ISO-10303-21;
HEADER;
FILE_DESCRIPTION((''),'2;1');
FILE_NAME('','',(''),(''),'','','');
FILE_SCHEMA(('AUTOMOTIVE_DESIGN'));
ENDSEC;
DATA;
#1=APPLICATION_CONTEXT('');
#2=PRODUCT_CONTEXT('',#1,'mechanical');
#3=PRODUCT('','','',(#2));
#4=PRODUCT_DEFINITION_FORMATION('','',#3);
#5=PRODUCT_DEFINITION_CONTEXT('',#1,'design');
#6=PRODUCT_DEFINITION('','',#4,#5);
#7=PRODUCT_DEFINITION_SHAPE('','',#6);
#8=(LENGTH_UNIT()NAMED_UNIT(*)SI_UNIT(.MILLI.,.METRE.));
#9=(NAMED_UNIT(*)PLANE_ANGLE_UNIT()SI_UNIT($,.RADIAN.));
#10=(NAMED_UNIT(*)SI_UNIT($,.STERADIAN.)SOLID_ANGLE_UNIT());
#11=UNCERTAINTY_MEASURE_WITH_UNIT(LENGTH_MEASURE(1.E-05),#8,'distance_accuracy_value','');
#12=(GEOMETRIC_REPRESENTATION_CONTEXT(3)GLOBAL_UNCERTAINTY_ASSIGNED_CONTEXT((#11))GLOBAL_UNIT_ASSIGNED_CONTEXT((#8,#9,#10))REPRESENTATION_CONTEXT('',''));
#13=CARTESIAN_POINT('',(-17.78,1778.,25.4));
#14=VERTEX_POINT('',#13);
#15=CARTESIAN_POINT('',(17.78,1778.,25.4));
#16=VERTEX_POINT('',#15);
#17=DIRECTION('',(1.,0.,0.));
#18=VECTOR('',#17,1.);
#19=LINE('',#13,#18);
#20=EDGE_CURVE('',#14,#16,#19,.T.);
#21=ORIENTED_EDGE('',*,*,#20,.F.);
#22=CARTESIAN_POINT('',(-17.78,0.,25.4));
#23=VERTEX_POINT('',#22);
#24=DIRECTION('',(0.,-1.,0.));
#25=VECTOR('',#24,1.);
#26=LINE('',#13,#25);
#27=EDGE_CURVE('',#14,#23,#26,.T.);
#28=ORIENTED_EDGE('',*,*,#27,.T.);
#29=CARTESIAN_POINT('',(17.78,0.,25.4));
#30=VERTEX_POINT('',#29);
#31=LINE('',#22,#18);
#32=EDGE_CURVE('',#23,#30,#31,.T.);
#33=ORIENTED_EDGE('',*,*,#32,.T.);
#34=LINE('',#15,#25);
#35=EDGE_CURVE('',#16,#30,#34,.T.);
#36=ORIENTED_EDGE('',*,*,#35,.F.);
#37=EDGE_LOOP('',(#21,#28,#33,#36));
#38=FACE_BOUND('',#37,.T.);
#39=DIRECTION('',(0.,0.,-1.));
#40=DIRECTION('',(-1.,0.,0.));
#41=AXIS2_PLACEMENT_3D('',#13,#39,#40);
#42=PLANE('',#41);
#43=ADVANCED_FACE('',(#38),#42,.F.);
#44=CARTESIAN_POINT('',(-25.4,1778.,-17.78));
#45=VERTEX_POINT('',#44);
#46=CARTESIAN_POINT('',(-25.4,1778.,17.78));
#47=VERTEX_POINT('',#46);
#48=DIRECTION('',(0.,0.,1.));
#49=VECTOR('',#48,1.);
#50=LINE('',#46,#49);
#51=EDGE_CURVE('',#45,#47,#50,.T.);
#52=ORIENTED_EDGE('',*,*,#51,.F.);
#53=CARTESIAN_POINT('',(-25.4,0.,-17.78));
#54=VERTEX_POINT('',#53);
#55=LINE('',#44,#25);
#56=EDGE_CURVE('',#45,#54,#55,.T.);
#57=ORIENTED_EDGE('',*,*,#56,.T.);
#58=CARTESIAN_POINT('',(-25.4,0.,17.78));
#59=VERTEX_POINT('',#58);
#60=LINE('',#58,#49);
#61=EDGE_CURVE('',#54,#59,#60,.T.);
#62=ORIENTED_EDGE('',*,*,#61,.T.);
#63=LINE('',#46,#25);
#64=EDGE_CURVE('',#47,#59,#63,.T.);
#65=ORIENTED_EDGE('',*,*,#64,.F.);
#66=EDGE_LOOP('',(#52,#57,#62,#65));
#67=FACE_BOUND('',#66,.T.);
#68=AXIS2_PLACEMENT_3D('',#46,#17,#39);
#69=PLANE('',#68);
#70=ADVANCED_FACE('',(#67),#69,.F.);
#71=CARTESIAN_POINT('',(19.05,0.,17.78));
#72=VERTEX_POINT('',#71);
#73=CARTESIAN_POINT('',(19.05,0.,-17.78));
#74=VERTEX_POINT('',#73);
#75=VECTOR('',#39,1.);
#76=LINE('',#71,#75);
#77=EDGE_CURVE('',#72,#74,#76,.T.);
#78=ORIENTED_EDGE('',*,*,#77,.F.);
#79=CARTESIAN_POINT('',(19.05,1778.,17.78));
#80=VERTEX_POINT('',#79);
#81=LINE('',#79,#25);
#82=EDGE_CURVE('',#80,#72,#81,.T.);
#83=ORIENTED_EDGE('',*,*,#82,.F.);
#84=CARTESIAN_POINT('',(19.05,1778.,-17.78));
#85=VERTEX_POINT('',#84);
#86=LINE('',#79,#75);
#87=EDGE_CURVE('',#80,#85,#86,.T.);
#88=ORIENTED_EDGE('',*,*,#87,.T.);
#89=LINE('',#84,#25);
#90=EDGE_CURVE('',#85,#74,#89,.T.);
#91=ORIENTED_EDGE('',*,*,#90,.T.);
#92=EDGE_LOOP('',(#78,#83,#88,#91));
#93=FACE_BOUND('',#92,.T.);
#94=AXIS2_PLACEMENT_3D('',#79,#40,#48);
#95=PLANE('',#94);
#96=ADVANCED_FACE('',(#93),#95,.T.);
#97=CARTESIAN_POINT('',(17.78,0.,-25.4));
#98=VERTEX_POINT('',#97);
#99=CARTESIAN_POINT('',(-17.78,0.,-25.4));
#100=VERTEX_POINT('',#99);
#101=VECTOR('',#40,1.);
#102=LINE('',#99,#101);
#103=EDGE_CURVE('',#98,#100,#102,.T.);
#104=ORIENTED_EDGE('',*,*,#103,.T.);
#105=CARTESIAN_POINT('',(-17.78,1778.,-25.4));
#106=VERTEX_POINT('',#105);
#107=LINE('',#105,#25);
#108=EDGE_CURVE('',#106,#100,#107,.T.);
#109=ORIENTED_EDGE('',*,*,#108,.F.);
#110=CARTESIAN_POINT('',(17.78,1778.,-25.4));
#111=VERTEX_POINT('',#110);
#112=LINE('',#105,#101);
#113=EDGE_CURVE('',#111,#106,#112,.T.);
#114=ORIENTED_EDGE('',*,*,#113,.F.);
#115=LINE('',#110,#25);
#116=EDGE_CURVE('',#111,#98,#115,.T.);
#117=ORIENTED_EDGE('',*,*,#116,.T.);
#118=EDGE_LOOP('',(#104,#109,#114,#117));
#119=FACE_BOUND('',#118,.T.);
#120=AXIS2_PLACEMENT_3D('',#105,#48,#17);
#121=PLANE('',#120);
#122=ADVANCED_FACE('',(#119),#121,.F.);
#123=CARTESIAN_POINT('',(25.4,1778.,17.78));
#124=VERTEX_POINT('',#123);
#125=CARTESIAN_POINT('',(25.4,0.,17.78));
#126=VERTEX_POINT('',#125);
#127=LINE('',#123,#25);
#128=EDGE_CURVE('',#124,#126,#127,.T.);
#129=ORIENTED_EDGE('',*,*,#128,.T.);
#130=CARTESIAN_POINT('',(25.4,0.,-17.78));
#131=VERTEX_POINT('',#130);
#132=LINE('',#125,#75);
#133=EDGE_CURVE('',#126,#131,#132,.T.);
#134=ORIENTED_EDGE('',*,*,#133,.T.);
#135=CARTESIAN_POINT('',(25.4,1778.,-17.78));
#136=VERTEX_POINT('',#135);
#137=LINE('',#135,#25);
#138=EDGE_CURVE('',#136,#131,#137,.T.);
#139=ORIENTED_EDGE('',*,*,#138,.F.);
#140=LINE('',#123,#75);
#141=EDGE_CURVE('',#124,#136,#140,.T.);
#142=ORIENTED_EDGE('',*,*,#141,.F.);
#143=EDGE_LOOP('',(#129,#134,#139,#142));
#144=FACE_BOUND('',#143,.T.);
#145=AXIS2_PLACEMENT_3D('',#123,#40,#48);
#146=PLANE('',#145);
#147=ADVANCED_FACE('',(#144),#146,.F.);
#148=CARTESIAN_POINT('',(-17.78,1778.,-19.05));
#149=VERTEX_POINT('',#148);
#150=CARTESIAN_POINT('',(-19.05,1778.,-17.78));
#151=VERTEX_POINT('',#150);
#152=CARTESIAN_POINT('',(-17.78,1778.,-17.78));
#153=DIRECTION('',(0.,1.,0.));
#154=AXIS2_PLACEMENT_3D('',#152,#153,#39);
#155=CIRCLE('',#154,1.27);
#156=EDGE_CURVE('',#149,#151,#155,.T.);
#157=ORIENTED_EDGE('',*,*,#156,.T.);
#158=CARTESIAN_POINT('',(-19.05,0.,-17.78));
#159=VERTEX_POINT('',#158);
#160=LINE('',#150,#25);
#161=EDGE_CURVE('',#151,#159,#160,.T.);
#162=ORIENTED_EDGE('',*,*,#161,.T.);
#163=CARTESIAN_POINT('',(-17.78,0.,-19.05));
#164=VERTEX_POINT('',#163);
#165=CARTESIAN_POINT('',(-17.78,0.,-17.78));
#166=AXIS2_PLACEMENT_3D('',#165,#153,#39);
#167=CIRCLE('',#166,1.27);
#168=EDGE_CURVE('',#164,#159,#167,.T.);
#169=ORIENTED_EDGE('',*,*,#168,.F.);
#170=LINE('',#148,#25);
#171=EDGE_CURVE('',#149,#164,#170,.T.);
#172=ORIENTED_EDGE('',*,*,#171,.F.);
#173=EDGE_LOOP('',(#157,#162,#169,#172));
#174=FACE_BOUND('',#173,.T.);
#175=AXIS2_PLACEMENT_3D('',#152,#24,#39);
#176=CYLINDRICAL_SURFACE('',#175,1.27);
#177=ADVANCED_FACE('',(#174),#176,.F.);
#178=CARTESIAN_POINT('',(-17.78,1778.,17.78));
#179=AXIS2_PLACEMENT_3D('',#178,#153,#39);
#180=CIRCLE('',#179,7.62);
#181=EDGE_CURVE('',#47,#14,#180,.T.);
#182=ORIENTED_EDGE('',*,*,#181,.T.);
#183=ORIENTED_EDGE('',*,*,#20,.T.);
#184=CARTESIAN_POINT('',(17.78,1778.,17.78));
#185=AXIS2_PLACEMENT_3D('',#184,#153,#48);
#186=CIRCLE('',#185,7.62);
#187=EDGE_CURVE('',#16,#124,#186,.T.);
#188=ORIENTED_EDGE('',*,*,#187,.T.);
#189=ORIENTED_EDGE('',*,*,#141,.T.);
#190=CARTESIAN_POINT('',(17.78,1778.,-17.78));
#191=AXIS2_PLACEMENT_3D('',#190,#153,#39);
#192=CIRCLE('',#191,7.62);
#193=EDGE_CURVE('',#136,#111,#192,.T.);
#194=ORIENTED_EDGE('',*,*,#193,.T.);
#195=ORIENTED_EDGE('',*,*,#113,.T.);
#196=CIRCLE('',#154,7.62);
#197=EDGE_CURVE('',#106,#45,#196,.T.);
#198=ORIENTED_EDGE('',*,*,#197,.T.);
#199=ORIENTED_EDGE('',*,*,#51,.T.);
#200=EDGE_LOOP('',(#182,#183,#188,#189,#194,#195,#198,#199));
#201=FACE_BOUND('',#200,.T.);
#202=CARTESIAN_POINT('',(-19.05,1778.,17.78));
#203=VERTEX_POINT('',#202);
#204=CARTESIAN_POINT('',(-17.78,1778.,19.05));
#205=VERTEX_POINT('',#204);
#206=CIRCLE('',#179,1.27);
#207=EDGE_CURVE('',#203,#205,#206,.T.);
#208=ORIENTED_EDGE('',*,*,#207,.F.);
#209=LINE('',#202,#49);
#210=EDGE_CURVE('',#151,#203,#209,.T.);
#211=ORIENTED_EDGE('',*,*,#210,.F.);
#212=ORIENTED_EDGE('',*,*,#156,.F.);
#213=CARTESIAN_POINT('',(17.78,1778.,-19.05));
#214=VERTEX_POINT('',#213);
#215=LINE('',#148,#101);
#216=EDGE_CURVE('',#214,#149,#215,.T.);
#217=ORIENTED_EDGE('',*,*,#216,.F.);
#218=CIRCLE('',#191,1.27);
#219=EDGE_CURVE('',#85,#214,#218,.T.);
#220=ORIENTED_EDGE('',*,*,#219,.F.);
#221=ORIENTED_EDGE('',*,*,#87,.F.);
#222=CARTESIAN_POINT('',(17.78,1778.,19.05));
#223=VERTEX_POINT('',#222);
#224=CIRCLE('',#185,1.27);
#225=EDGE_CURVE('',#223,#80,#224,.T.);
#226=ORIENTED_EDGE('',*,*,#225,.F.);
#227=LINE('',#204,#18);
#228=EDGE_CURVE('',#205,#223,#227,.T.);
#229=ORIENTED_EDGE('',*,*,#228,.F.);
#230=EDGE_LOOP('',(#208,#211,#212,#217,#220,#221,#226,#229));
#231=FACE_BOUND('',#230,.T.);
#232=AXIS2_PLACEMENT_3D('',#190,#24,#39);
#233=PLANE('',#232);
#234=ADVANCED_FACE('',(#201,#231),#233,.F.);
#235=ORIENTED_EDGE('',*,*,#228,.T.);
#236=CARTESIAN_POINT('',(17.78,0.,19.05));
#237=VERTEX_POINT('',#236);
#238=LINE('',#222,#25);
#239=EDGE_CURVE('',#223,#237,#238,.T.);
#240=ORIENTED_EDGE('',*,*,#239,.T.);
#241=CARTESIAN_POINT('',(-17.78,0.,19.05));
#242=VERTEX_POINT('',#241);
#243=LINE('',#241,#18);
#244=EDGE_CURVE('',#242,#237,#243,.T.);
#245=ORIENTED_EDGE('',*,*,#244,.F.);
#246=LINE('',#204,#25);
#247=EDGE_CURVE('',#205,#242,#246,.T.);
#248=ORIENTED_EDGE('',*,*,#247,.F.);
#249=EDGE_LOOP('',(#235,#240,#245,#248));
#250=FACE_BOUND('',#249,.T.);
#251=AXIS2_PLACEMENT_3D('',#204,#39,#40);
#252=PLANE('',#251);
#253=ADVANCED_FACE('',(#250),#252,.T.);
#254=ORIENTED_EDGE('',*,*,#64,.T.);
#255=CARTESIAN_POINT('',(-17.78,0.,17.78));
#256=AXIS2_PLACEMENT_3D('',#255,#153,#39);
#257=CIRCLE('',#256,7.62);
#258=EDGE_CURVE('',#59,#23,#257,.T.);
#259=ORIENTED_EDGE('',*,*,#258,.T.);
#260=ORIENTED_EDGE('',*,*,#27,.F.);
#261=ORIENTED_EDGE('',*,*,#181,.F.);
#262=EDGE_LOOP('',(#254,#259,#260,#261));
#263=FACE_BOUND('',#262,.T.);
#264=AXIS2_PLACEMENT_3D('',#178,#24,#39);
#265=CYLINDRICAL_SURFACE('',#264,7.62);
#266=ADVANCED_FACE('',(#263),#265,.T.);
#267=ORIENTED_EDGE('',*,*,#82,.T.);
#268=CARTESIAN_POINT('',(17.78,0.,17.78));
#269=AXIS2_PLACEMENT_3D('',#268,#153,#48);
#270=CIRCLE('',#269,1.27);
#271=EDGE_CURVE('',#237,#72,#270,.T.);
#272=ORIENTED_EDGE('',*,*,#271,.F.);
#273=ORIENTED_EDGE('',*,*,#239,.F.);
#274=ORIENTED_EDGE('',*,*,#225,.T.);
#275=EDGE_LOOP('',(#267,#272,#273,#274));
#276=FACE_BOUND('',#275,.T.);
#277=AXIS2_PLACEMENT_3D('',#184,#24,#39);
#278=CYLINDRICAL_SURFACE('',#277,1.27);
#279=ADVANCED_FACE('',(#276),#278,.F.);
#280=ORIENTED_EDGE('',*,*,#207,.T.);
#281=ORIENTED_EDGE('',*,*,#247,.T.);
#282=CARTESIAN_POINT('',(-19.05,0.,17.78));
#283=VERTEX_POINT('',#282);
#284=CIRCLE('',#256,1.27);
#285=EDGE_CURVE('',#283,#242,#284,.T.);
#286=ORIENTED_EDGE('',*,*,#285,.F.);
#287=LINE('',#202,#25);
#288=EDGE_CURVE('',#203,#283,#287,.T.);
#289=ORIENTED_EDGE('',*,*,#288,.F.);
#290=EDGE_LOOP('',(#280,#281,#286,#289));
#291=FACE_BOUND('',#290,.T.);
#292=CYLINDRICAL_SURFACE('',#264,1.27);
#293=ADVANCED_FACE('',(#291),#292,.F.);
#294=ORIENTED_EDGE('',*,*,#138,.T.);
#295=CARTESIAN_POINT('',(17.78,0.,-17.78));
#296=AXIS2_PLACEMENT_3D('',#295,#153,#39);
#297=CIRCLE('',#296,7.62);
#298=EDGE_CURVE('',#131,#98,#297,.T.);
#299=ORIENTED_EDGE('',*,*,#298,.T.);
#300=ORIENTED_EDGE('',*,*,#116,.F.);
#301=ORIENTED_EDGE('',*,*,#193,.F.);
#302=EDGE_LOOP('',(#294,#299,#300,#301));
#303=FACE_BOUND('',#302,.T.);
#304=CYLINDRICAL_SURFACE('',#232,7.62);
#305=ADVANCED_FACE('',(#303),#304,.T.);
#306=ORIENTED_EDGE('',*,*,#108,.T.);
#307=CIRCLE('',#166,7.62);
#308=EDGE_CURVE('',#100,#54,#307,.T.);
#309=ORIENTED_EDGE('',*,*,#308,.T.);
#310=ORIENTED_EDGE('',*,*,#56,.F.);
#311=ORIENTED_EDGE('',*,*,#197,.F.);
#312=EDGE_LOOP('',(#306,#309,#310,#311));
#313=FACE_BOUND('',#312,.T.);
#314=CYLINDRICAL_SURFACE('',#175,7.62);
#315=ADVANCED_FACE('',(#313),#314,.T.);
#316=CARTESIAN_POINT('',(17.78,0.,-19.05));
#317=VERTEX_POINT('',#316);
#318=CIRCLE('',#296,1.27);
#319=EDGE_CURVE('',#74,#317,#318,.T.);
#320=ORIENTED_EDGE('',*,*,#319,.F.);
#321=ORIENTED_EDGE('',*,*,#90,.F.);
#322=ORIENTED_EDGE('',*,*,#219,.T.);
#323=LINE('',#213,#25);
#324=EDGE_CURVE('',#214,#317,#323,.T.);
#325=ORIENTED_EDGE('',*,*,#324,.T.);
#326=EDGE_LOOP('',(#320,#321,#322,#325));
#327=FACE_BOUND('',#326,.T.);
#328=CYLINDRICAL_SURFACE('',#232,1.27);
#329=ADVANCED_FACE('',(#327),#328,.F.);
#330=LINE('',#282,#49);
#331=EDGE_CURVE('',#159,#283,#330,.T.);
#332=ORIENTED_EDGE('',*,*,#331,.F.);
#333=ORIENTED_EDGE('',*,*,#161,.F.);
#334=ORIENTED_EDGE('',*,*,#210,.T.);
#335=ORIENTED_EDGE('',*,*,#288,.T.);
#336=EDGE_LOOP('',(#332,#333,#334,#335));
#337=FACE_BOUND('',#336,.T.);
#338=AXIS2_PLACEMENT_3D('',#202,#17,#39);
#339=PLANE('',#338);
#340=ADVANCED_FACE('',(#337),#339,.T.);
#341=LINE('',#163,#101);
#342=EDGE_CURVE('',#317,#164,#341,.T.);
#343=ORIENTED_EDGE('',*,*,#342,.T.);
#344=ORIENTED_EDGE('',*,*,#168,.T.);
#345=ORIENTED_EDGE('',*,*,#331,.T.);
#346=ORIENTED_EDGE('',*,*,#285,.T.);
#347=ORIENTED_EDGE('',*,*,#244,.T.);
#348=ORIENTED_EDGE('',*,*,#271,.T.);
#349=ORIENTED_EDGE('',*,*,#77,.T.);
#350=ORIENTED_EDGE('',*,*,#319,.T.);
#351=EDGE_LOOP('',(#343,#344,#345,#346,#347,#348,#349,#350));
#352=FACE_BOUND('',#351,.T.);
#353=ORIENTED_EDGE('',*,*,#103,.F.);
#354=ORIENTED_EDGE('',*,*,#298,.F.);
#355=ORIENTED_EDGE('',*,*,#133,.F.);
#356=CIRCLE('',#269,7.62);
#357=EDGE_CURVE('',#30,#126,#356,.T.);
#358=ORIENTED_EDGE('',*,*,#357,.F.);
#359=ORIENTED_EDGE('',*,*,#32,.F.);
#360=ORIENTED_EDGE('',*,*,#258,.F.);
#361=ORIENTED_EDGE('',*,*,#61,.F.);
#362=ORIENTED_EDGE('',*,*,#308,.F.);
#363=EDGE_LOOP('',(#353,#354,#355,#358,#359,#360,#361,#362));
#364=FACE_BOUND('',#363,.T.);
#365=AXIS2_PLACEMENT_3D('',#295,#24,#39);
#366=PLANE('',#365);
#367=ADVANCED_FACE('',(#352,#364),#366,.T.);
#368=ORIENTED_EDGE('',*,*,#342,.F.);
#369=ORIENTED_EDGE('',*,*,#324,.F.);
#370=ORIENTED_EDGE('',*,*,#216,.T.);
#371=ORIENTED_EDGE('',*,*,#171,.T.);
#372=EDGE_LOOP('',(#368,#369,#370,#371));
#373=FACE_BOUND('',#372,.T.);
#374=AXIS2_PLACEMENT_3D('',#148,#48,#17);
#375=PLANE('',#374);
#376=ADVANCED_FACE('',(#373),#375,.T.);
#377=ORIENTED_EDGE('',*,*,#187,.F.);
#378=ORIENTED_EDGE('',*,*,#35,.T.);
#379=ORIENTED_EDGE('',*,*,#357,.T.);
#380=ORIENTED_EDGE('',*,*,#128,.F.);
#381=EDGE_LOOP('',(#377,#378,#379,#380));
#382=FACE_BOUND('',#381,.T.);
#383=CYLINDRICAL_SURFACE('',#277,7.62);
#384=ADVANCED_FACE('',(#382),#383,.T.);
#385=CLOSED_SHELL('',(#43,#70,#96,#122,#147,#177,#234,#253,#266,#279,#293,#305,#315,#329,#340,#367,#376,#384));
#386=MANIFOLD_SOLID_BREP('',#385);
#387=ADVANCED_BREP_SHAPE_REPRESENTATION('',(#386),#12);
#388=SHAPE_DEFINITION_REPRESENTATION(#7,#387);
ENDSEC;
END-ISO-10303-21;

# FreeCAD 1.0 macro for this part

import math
import FreeCAD as App
import Part
import Sketcher

V = App.Vector
Q = App.Units.Quantity

doc = App.newDocument("Part")
body = doc.addObject("PartDesign::Body", "Body")

# Sketch on XZ plane
sketch1 = body.newObject("Sketcher::SketchObject", "Sketch")
sketch1.AttachmentSupport = (doc.getObject("XZ_Plane"), [""])
sketch1.MapMode = "FlatFace"
sketch1.addGeometry([
    Part.LineSegment(V(-17.78, 25.4, 0), V(17.78, 25.4, 0)),  # 0
    Part.ArcOfCircle(Part.Circle(V(17.78, 17.78, 0), V(0, 0, 1), 7.62), math.radians(0), math.radians(90)),  # 1
    Part.LineSegment(V(25.4, 17.78, 0), V(25.4, -17.78, 0)),  # 2
    Part.ArcOfCircle(Part.Circle(V(17.78, -17.78, 0), V(0, 0, 1), 7.62), math.radians(-90), math.radians(0)),  # 3
    Part.LineSegment(V(17.78, -25.4, 0), V(-17.78, -25.4, 0)),  # 4
    Part.ArcOfCircle(Part.Circle(V(-17.78, -17.78, 0), V(0, 0, 1), 7.62), math.radians(180), math.radians(270)),  # 5
    Part.LineSegment(V(-25.4, -17.78, 0), V(-25.4, 17.78, 0)),  # 6
    Part.ArcOfCircle(Part.Circle(V(-17.78, 17.78, 0), V(0, 0, 1), 7.62), math.radians(90), math.radians(180)),  # 7
    Part.LineSegment(V(17.78, 19.05, 0), V(-17.78, 19.05, 0)),  # 8
    Part.ArcOfCircle(Part.Circle(V(-17.78, 17.78, 0), V(0, 0, 1), 1.27), math.radians(90), math.radians(180)),  # 9
    Part.LineSegment(V(-19.05, 17.78, 0), V(-19.05, -17.78, 0)),  # 10
    Part.ArcOfCircle(Part.Circle(V(-17.78, -17.78, 0), V(0, 0, 1), 1.27), math.radians(180), math.radians(270)),  # 11
    Part.LineSegment(V(-17.78, -19.05, 0), V(17.78, -19.05, 0)),  # 12
    Part.ArcOfCircle(Part.Circle(V(17.78, -17.78, 0), V(0, 0, 1), 1.27), math.radians(-90), math.radians(0)),  # 13
    Part.LineSegment(V(19.05, -17.78, 0), V(19.05, 17.78, 0)),  # 14
    Part.ArcOfCircle(Part.Circle(V(17.78, 17.78, 0), V(0, 0, 1), 1.27), math.radians(0), math.radians(90)),  # 15
], False)
sketch1.addConstraint([
    Sketcher.Constraint("Tangent", 0, 2, 1, 2),
    Sketcher.Constraint("Tangent", 1, 1, 2, 1),
    Sketcher.Constraint("Tangent", 2, 2, 3, 2),
    Sketcher.Constraint("Tangent", 3, 1, 4, 1),
    Sketcher.Constraint("Tangent", 4, 2, 5, 2),
    Sketcher.Constraint("Tangent", 5, 1, 6, 1),
    Sketcher.Constraint("Tangent", 6, 2, 7, 2),
    Sketcher.Constraint("Tangent", 7, 1, 0, 1),
    Sketcher.Constraint("Tangent", 8, 2, 9, 1),
    Sketcher.Constraint("Tangent", 9, 2, 10, 1),
    Sketcher.Constraint("Tangent", 10, 2, 11, 1),
    Sketcher.Constraint("Tangent", 11, 2, 12, 1),
    Sketcher.Constraint("Tangent", 12, 2, 13, 1),
    Sketcher.Constraint("Tangent", 13, 2, 14, 1),
    Sketcher.Constraint("Tangent", 14, 2, 15, 1),
    Sketcher.Constraint("Tangent", 15, 2, 8, 1),
    Sketcher.Constraint("Horizontal", 0),
    Sketcher.Constraint("Vertical", 2),
    Sketcher.Constraint("Horizontal", 4),
    Sketcher.Constraint("Vertical", 6),
    Sketcher.Constraint("Horizontal", 8),
    Sketcher.Constraint("Vertical", 10),
    Sketcher.Constraint("Horizontal", 12),
    Sketcher.Constraint("Vertical", 14),
    Sketcher.Constraint("Coincident", 9, 3, 7, 3),
    Sketcher.Constraint("Coincident", 11, 3, 5, 3),
    Sketcher.Constraint("Coincident", 13, 3, 3, 3),
    Sketcher.Constraint("Equal", 1, 3),
    Sketcher.Constraint("Equal", 3, 5),
    Sketcher.Constraint("Equal", 5, 7),
    Sketcher.Constraint("Equal", 13, 15),
    Sketcher.Constraint("Symmetric", 1, 3, 5, 3, -1, 1),
    Sketcher.Constraint("Equal", 12, 2),
    Sketcher.Constraint("Radius", 1, Q("0.3 in")),
    Sketcher.Constraint("Radius", 9, Q("0.05 in")),
    Sketcher.Constraint("DistanceX", 0, 1, 0, 2, Q("1.4 in")),
])
pad1 = body.newObject("PartDesign::Pad", "Pad")
pad1.Profile = sketch1
pad1.Length = Q("70 in")
pad1.Reversed = True

doc.recompute()
